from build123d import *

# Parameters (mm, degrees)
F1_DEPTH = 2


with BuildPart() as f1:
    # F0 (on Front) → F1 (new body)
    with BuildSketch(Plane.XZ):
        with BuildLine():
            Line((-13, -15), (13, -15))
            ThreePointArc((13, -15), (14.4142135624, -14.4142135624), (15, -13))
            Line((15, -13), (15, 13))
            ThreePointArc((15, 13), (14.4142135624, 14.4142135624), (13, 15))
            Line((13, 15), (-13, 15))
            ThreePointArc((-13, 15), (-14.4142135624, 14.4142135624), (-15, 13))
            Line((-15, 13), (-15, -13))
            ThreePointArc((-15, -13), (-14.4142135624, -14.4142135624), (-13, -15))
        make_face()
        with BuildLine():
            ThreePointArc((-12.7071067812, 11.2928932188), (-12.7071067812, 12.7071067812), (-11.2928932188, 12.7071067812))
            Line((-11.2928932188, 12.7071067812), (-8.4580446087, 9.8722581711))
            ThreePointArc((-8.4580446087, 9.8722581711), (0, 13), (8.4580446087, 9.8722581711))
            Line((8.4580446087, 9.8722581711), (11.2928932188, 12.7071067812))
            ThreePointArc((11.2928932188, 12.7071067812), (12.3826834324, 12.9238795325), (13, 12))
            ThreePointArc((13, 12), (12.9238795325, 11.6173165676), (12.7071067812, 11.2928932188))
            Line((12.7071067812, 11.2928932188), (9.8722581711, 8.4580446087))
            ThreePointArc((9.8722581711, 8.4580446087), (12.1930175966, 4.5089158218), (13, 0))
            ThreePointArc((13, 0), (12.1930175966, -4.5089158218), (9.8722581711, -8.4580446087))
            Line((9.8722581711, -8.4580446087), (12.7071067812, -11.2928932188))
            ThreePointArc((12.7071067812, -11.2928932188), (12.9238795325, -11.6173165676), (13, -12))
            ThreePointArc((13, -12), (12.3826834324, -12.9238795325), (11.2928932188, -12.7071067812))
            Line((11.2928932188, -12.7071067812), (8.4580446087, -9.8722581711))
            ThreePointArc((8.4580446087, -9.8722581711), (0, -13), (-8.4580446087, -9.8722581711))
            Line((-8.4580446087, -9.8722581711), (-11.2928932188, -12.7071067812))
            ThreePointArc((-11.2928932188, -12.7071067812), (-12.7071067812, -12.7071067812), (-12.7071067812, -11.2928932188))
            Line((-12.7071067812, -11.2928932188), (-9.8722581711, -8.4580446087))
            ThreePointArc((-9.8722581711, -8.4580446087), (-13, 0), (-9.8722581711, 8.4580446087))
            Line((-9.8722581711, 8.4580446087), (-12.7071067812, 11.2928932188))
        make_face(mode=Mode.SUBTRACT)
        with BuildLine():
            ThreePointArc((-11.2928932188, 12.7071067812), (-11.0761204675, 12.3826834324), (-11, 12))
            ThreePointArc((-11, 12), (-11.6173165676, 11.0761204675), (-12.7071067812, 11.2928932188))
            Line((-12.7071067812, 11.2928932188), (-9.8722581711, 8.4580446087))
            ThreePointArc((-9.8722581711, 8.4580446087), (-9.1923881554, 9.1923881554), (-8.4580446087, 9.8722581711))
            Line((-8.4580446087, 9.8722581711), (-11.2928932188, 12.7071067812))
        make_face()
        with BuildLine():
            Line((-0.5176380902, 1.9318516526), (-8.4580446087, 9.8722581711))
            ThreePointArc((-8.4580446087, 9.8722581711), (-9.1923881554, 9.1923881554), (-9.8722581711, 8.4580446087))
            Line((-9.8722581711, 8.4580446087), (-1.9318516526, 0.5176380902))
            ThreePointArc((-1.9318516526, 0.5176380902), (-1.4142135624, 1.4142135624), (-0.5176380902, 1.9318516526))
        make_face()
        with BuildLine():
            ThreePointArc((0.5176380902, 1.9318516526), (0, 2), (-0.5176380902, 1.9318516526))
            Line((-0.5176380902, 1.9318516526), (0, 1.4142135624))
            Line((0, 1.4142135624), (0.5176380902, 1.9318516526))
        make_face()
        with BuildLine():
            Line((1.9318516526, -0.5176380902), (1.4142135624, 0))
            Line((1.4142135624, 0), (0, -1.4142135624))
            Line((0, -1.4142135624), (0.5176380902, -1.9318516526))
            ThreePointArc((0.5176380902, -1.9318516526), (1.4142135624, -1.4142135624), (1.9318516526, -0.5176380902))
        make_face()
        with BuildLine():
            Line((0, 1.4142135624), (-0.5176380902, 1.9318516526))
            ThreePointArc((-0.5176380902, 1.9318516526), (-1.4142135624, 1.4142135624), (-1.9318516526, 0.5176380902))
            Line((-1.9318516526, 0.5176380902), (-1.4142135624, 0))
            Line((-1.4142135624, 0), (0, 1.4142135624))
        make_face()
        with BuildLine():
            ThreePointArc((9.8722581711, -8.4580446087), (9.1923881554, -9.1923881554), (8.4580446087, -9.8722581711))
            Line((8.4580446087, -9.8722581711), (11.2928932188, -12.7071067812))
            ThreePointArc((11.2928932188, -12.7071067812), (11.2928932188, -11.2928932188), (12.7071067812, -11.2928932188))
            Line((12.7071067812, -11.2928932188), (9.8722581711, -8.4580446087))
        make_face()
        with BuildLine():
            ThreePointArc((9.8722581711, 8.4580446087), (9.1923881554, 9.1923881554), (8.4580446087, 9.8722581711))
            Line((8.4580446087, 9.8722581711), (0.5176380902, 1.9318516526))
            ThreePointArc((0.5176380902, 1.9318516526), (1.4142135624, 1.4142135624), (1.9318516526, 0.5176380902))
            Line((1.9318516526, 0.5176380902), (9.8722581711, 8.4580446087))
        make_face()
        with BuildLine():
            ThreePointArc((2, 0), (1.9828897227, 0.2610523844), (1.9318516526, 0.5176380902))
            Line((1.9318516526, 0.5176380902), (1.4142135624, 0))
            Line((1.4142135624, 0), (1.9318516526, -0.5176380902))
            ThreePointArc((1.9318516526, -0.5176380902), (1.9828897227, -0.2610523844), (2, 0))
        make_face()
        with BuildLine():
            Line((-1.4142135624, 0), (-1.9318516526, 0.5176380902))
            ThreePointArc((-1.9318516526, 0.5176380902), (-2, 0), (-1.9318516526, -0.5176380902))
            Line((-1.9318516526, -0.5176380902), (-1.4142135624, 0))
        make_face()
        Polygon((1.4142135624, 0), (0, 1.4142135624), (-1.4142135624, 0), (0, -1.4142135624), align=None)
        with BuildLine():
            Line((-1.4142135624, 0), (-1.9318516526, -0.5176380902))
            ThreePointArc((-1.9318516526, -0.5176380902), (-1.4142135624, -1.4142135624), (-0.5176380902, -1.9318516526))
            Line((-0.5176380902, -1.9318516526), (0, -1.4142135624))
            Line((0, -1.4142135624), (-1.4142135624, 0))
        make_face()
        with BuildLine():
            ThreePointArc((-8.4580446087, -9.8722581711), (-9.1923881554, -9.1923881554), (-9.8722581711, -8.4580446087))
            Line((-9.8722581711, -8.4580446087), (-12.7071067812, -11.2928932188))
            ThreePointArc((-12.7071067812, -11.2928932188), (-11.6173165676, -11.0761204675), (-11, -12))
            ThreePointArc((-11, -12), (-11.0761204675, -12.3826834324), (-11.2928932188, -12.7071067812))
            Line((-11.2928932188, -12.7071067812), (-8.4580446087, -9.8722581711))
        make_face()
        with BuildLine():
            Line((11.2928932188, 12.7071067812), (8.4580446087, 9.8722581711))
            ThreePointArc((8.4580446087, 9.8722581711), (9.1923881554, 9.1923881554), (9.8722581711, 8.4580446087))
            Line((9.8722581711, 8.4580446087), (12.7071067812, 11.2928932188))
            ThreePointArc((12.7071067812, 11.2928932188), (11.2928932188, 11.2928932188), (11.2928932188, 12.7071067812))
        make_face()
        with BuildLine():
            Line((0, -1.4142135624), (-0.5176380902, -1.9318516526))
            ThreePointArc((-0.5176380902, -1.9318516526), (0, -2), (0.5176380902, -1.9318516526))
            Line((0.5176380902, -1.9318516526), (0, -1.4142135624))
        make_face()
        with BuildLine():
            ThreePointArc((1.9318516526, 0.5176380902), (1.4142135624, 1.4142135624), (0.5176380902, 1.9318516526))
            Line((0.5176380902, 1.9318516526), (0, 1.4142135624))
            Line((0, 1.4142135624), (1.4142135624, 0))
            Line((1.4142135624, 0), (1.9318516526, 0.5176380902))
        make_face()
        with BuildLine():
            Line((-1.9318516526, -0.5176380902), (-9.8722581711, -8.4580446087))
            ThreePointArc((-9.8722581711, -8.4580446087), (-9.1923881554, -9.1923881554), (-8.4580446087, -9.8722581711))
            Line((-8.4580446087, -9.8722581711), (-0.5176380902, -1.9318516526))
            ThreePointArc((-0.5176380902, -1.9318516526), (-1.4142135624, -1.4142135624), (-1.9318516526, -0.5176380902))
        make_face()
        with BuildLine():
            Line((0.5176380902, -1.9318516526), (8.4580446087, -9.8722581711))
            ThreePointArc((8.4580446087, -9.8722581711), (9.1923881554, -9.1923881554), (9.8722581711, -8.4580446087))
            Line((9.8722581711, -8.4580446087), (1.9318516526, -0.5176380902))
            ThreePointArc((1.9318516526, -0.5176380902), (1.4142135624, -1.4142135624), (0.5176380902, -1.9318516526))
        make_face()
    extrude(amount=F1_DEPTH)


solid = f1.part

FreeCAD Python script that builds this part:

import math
import FreeCAD as App
import Part
import Sketcher

V = App.Vector

doc = App.newDocument("Part")
params = doc.addObject("Spreadsheet::Sheet", "Params")
for row, (alias, value) in enumerate([
    ("sketch1_radius", "2 mm"),
    ("sketch1_radius2", "1 mm"),
    ("sketch1_radius3", "13 mm"),
    ("pad1_length", "2 mm"),
], start=1):
    params.set(f"A{row}", alias)
    params.set(f"B{row}", "=" + value)
    params.setAlias(f"B{row}", alias)

body = doc.addObject("PartDesign::Body", "Body")

# Sketch on XZ plane
sketch1 = doc.addObject("Sketcher::SketchObject", "Sketch")
body.addObject(sketch1)
sketch1.AttachmentSupport = (doc.XZ_Plane, [""])
sketch1.MapMode = "FlatFace"
sketch1.addGeometry(Part.LineSegment(V(-13, -15, 0), V(13, -15, 0)), False)
sketch1.addGeometry(Part.ArcOfCircle(Part.Circle(V(13, -13, 0), V(0, 0, 1), 2), math.radians(-90), math.radians(0)), False)
sketch1.addGeometry(Part.LineSegment(V(15, -13, 0), V(15, 13, 0)), False)
sketch1.addGeometry(Part.ArcOfCircle(Part.Circle(V(13, 13, 0), V(0, 0, 1), 2), math.radians(0), math.radians(90)), False)
sketch1.addGeometry(Part.LineSegment(V(13, 15, 0), V(-13, 15, 0)), False)
sketch1.addGeometry(Part.ArcOfCircle(Part.Circle(V(-13, 13, 0), V(0, 0, 1), 2), math.radians(90), math.radians(180)), False)
sketch1.addGeometry(Part.LineSegment(V(-15, 13, 0), V(-15, -13, 0)), False)
sketch1.addGeometry(Part.ArcOfCircle(Part.Circle(V(-13, -13, 0), V(0, 0, 1), 2), math.radians(180), math.radians(270)), False)
sketch1.addGeometry(Part.ArcOfCircle(Part.Circle(V(-12, -12, 0), V(0, 0, 1), 1), math.radians(135), math.radians(315)), False)
sketch1.addGeometry(Part.ArcOfCircle(Part.Circle(V(-12, -12, 0), V(0, 0, 1), 1), math.radians(0), math.radians(135)), False)
sketch1.addGeometry(Part.ArcOfCircle(Part.Circle(V(-12, -12, 0), V(0, 0, 1), 1), math.radians(-45), math.radians(0)), False)
sketch1.addGeometry(Part.ArcOfCircle(Part.Circle(V(12, -12, 0), V(0, 0, 1), 1), math.radians(0), math.radians(45)), False)
sketch1.addGeometry(Part.ArcOfCircle(Part.Circle(V(12, -12, 0), V(0, 0, 1), 1), math.radians(-135), math.radians(0)), False)
sketch1.addGeometry(Part.ArcOfCircle(Part.Circle(V(12, -12, 0), V(0, 0, 1), 1), math.radians(45), math.radians(225)), False)
sketch1.addGeometry(Part.ArcOfCircle(Part.Circle(V(0, 0, 0), V(0, 0, 1), 2), math.radians(0), math.radians(15)), False)
sketch1.addGeometry(Part.LineSegment(V(1.9, 0.5, 0), V(9.9, 8.5, 0)), False)
sketch1.addGeometry(Part.ArcOfCircle(Part.Circle(V(0, 0, 0), V(0, 0, 1), 13), math.radians(0), math.radians(41)), False)
sketch1.addGeometry(Part.ArcOfCircle(Part.Circle(V(0, 0, 0), V(0, 0, 1), 13), math.radians(-41), math.radians(0)), False)
sketch1.addGeometry(Part.LineSegment(V(9.9, -8.5, 0), V(1.9, -0.5, 0)), False)
sketch1.addGeometry(Part.ArcOfCircle(Part.Circle(V(0, 0, 0), V(0, 0, 1), 2), math.radians(-15), math.radians(0)), False)
sketch1.addGeometry(Part.ArcOfCircle(Part.Circle(V(0, 0, 0), V(0, 0, 1), 13), math.radians(-131), math.radians(-49)), False)
sketch1.addGeometry(Part.LineSegment(V(-8.5, -9.9, 0), V(-0.5, -1.9, 0)), False)
sketch1.addGeometry(Part.ArcOfCircle(Part.Circle(V(0, 0, 0), V(0, 0, 1), 2), math.radians(-105), math.radians(-75)), False)
sketch1.addGeometry(Part.LineSegment(V(0.5, -1.9, 0), V(8.5, -9.9, 0)), False)
sketch1.addGeometry(Part.ArcOfCircle(Part.Circle(V(0, 0, 0), V(0, 0, 1), 13), math.radians(139), math.radians(221)), False)
sketch1.addGeometry(Part.LineSegment(V(-9.9, 8.5, 0), V(-1.9, 0.5, 0)), False)
sketch1.addGeometry(Part.ArcOfCircle(Part.Circle(V(0, 0, 0), V(0, 0, 1), 2), math.radians(165), math.radians(195)), False)
sketch1.addGeometry(Part.LineSegment(V(-1.9, -0.5, 0), V(-9.9, -8.5, 0)), False)
sketch1.addGeometry(Part.ArcOfCircle(Part.Circle(V(-12, 12, 0), V(0, 0, 1), 1), math.radians(45), math.radians(225)), False)
sketch1.addGeometry(Part.ArcOfCircle(Part.Circle(V(-12, 12, 0), V(0, 0, 1), 1), math.radians(0), math.radians(45)), False)
sketch1.addGeometry(Part.ArcOfCircle(Part.Circle(V(-12, 12, 0), V(0, 0, 1), 1), math.radians(-135), math.radians(0)), False)
sketch1.addGeometry(Part.LineSegment(V(8.5, 9.9, 0), V(0.5, 1.9, 0)), False)
sketch1.addGeometry(Part.ArcOfCircle(Part.Circle(V(0, 0, 0), V(0, 0, 1), 2), math.radians(75), math.radians(105)), False)
sketch1.addGeometry(Part.LineSegment(V(-0.5, 1.9, 0), V(-8.5, 9.9, 0)), False)
sketch1.addGeometry(Part.ArcOfCircle(Part.Circle(V(0, 0, 0), V(0, 0, 1), 13), math.radians(49), math.radians(131)), False)
sketch1.addGeometry(Part.ArcOfCircle(Part.Circle(V(12, 12, 0), V(0, 0, 1), 1), math.radians(0), math.radians(135)), False)
sketch1.addGeometry(Part.ArcOfCircle(Part.Circle(V(12, 12, 0), V(0, 0, 1), 1), math.radians(-45), math.radians(0)), False)
sketch1.addGeometry(Part.ArcOfCircle(Part.Circle(V(12, 12, 0), V(0, 0, 1), 1), math.radians(135), math.radians(315)), False)
sketch1.addConstraint(Sketcher.Constraint("Tangent", 0, 2, 1, 1))
sketch1.addConstraint(Sketcher.Constraint("Tangent", 1, 2, 2, 1))
sketch1.addConstraint(Sketcher.Constraint("Tangent", 2, 2, 3, 1))
sketch1.addConstraint(Sketcher.Constraint("Tangent", 3, 2, 4, 1))
sketch1.addConstraint(Sketcher.Constraint("Tangent", 4, 2, 5, 1))
sketch1.addConstraint(Sketcher.Constraint("Tangent", 5, 2, 6, 1))
sketch1.addConstraint(Sketcher.Constraint("Tangent", 6, 2, 7, 1))
sketch1.addConstraint(Sketcher.Constraint("Tangent", 7, 2, 0, 1))
sketch1.addConstraint(Sketcher.Constraint("Tangent", 8, 1, 9, 2))
sketch1.addConstraint(Sketcher.Constraint("Tangent", 9, 1, 10, 2))
sketch1.addConstraint(Sketcher.Constraint("Tangent", 10, 1, 8, 2))
sketch1.addConstraint(Sketcher.Constraint("Tangent", 11, 1, 12, 2))
sketch1.addConstraint(Sketcher.Constraint("Tangent", 12, 1, 13, 2))
sketch1.addConstraint(Sketcher.Constraint("Tangent", 13, 1, 11, 2))
sketch1.addConstraint(Sketcher.Constraint("Coincident", 14, 2, 15, 1))
sketch1.addConstraint(Sketcher.Constraint("Coincident", 15, 2, 16, 2))
sketch1.addConstraint(Sketcher.Constraint("Tangent", 16, 1, 17, 2))
sketch1.addConstraint(Sketcher.Constraint("Coincident", 17, 1, 18, 1))
sketch1.addConstraint(Sketcher.Constraint("Coincident", 18, 2, 19, 1))
sketch1.addConstraint(Sketcher.Constraint("Tangent", 19, 2, 14, 1))
sketch1.addConstraint(Sketcher.Constraint("Coincident", 20, 1, 21, 1))
sketch1.addConstraint(Sketcher.Constraint("Coincident", 21, 2, 22, 1))
sketch1.addConstraint(Sketcher.Constraint("Coincident", 22, 2, 23, 1))
sketch1.addConstraint(Sketcher.Constraint("Coincident", 23, 2, 20, 2))
sketch1.addConstraint(Sketcher.Constraint("Coincident", 24, 1, 25, 1))
sketch1.addConstraint(Sketcher.Constraint("Coincident", 25, 2, 26, 1))
sketch1.addConstraint(Sketcher.Constraint("Coincident", 26, 2, 27, 1))
sketch1.addConstraint(Sketcher.Constraint("Coincident", 27, 2, 24, 2))
sketch1.addConstraint(Sketcher.Constraint("Tangent", 28, 1, 29, 2))
sketch1.addConstraint(Sketcher.Constraint("Tangent", 29, 1, 30, 2))
sketch1.addConstraint(Sketcher.Constraint("Tangent", 30, 1, 28, 2))
sketch1.addConstraint(Sketcher.Constraint("Coincident", 31, 2, 32, 1))
sketch1.addConstraint(Sketcher.Constraint("Coincident", 32, 2, 33, 1))
sketch1.addConstraint(Sketcher.Constraint("Coincident", 33, 2, 34, 2))
sketch1.addConstraint(Sketcher.Constraint("Coincident", 34, 1, 31, 1))
sketch1.addConstraint(Sketcher.Constraint("Tangent", 35, 1, 36, 2))
sketch1.addConstraint(Sketcher.Constraint("Tangent", 36, 1, 37, 2))
sketch1.addConstraint(Sketcher.Constraint("Tangent", 37, 1, 35, 2))
sketch1.addConstraint(Sketcher.Constraint("Horizontal", 0))
sketch1.addConstraint(Sketcher.Constraint("Vertical", 2))
sketch1.addConstraint(Sketcher.Constraint("Horizontal", 4))
sketch1.addConstraint(Sketcher.Constraint("Vertical", 6))
sketch1.addConstraint(Sketcher.Constraint("Coincident", 14, 3, -1, 1))
sketch1.addConstraint(Sketcher.Constraint("Coincident", 16, 3, -1, 1))
sketch1.addConstraint(Sketcher.Constraint("Coincident", 20, 3, -1, 1))
sketch1.addConstraint(Sketcher.Constraint("Coincident", 22, 3, -1, 1))
sketch1.addConstraint(Sketcher.Constraint("Coincident", 24, 3, -1, 1))
sketch1.addConstraint(Sketcher.Constraint("Coincident", 26, 3, -1, 1))
sketch1.addConstraint(Sketcher.Constraint("Coincident", 32, 3, -1, 1))
sketch1.addConstraint(Sketcher.Constraint("Coincident", 34, 3, -1, 1))
sketch1.addConstraint(Sketcher.Constraint("Equal", 1, 3))
sketch1.addConstraint(Sketcher.Constraint("Equal", 3, 5))
sketch1.addConstraint(Sketcher.Constraint("Equal", 5, 7))
sketch1.addConstraint(Sketcher.Constraint("Equal", 10, 11))
sketch1.addConstraint(Sketcher.Constraint("Equal", 7, 14))
sketch1.addConstraint(Sketcher.Constraint("Equal", 16, 17))
sketch1.addConstraint(Sketcher.Constraint("Equal", 14, 19))
sketch1.addConstraint(Sketcher.Constraint("Equal", 17, 20))
sketch1.addConstraint(Sketcher.Constraint("Equal", 19, 22))
sketch1.addConstraint(Sketcher.Constraint("Equal", 20, 24))
sketch1.addConstraint(Sketcher.Constraint("Equal", 22, 26))
sketch1.addConstraint(Sketcher.Constraint("Equal", 13, 28))
sketch1.addConstraint(Sketcher.Constraint("Equal", 26, 32))
sketch1.addConstraint(Sketcher.Constraint("Equal", 24, 34))
sketch1.addConstraint(Sketcher.Constraint("Equal", 30, 35))
sketch1.addConstraint(Sketcher.Constraint("Symmetric", 1, 3, 5, 3, -1, 1))
sketch1.addConstraint(Sketcher.Constraint("Symmetric", 11, 3, 28, 3, -1, 1))
sketch1.addConstraint(Sketcher.Constraint("Symmetric", 8, 3, 35, 3, -1, 1))
sketch1.addConstraint(Sketcher.Constraint("Symmetric", 8, 3, 11, 3, -2))
sketch1.addConstraint(Sketcher.Constraint("PointOnObject", 16, 1, -1))
sketch1.addConstraint(Sketcher.Constraint("PointOnObject", 19, 2, -1))
sketch1.addConstraint(Sketcher.Constraint("Perpendicular", 15, 18))
sketch1.addConstraint(Sketcher.Constraint("Perpendicular", 18, 21))
sketch1.addConstraint(Sketcher.Constraint("Perpendicular", 21, 23))
sketch1.addConstraint(Sketcher.Constraint("Parallel", 23, 25))
sketch1.addConstraint(Sketcher.Constraint("Perpendicular", 25, 27))
sketch1.addConstraint(Sketcher.Constraint("Parallel", 27, 31))
sketch1.addConstraint(Sketcher.Constraint("Perpendicular", 31, 33))
sketch1.addConstraint(Sketcher.Constraint("Horizontal", 13, 3, 9, 1))
sketch1.addConstraint(Sketcher.Constraint("Horizontal", 9, 1, 11, 1))
sketch1.addConstraint(Sketcher.Constraint("Horizontal", 10, 1, 12, 1))
sketch1.addConstraint(Sketcher.Constraint("Horizontal", 8, 1, 13, 1))
sketch1.addConstraint(Sketcher.Constraint("Horizontal", 21, 2, 22, 2))
sketch1.addConstraint(Sketcher.Constraint("Horizontal", 20, 1, 23, 2))
sketch1.addConstraint(Sketcher.Constraint("Horizontal", 15, 2, 24, 1))
sketch1.addConstraint(Sketcher.Constraint("Horizontal", 18, 2, 26, 2))
sketch1.addConstraint(Sketcher.Constraint("Horizontal", 37, 3, 29, 1))
sketch1.addConstraint(Sketcher.Constraint("Horizontal", 31, 2, 32, 2))
sketch1.addConstraint(Sketcher.Constraint("Horizontal", 29, 1, 35, 1))
sketch1.addConstraint(Sketcher.Constraint("Horizontal", 30, 1, 36, 1))
sketch1.addConstraint(Sketcher.Constraint("Horizontal", 28, 1, 37, 1))
sketch1.addConstraint(Sketcher.Constraint("Vertical", 3, 2, 11, 1))
sketch1.addConstraint(Sketcher.Constraint("Vertical", 11, 1, 16, 1))
sketch1.addConstraint(Sketcher.Constraint("Vertical", 15, 2, 17, 1))
sketch1.addConstraint(Sketcher.Constraint("Vertical", 10, 1, 28, 1))
sketch1.addConstraint(Sketcher.Constraint("Vertical", 8, 1, 30, 1))
sketch1.addConstraint(Sketcher.Constraint("Vertical", 22, 2, 31, 2))
sketch1.addConstraint(Sketcher.Constraint("Equal", 4, 2))
sketch1.addConstraint(Sketcher.Constraint("Equal", 18, 21))
sketch1.addConstraint(Sketcher.Constraint("Radius", 1, 2.0))
sketch1.addConstraint(Sketcher.Constraint("Radius", 8, 1.0))
sketch1.addConstraint(Sketcher.Constraint("Radius", 16, 13.0))
sketch1.addConstraint(Sketcher.Constraint("DistanceY", 8, 3, -1, 1, 12.0))
sketch1.addConstraint(Sketcher.Constraint("Distance", 15, 11.229431))
sketch1.addConstraint(Sketcher.Constraint("DistanceX", 8, 1, -1, 1, 12.707107))
sketch1.addConstraint(Sketcher.Constraint("DistanceX", 10, 1, -1, 1, 11.292893))
sketch1.setExpression("Constraints[99]", "Params.sketch1_radius")
sketch1.setExpression("Constraints[100]", "Params.sketch1_radius2")
sketch1.setExpression("Constraints[101]", "Params.sketch1_radius3")
pad1 = doc.addObject("PartDesign::Pad", "Pad")
body.addObject(pad1)
pad1.Profile = sketch1
pad1.setExpression("Length", "Params.pad1_length")

doc.recompute()
